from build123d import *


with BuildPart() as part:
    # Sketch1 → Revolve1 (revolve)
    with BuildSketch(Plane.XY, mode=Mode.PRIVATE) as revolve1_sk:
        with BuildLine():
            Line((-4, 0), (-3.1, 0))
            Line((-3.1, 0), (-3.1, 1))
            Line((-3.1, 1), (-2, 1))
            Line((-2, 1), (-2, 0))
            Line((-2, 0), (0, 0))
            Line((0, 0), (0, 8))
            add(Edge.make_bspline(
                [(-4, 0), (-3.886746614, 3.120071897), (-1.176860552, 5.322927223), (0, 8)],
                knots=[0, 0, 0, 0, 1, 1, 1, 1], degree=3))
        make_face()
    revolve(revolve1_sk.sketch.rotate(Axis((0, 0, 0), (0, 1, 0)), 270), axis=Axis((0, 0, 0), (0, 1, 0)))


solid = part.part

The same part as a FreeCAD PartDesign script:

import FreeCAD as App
import Part
import Sketcher
from FreeCAD import Vector
Q = App.Units.Quantity

doc = App.newDocument("Part")
params = doc.addObject("Spreadsheet::Sheet", "Params")
for row, (alias, value) in enumerate([
    ("sketch1_width", "2 mm"),
    ("sketch1_height", "1 mm"),
    ("sketch1_width2", "0.9 mm"),
    ("revolution_angle", "360 deg"),
], start=1):
    params.set(f"A{row}", alias)
    params.set(f"B{row}", "=" + value)
    params.setAlias(f"B{row}", alias)

body = doc.addObject("PartDesign::Body", "Body")

sketch1 = body.newObject("Sketcher::SketchObject", "Sketch")
sketch1.AttachmentSupport = (doc.getObject("XY_Plane"), [""])
sketch1.MapMode = "FlatFace"
sketch1.addGeometry(Part.LineSegment(Vector(-4, 0, 0), Vector(-3.1, 0, 0)), False)
sketch1.addGeometry(Part.LineSegment(Vector(-3.1, 0, 0), Vector(-3.1, 1, 0)), False)
sketch1.addGeometry(Part.LineSegment(Vector(-3.1, 1, 0), Vector(-2, 1, 0)), False)
sketch1.addGeometry(Part.LineSegment(Vector(-2, 1, 0), Vector(-2, 0, 0)), False)
sketch1.addGeometry(Part.LineSegment(Vector(-2, 0, 0), Vector(0, 0, 0)), False)
sketch1.addGeometry(Part.LineSegment(Vector(0, 0, 0), Vector(0, 8, 0)), False)
sketch1.addGeometry(Part.BSplineCurve([Vector(-4, 0, 0), Vector(-3.886747, 3.120072, 0), Vector(-1.176861, 5.322927, 0), Vector(0, 8, 0)], [4, 4], [0, 1], False, 3, [1, 1, 1, 1], False), False)
sketch1.addConstraint(Sketcher.Constraint("Block", 6))
sketch1.addConstraint(Sketcher.Constraint("Coincident", 0, 2, 1, 1))
sketch1.addConstraint(Sketcher.Constraint("Coincident", 1, 2, 2, 1))
sketch1.addConstraint(Sketcher.Constraint("Coincident", 2, 2, 3, 1))
sketch1.addConstraint(Sketcher.Constraint("Coincident", 3, 2, 4, 1))
sketch1.addConstraint(Sketcher.Constraint("Coincident", 4, 2, 5, 1))
sketch1.addConstraint(Sketcher.Constraint("Coincident", 5, 2, 6, 2))
sketch1.addConstraint(Sketcher.Constraint("Coincident", 6, 1, 0, 1))
sketch1.addConstraint(Sketcher.Constraint("Horizontal", 0))
sketch1.addConstraint(Sketcher.Constraint("Vertical", 1))
sketch1.addConstraint(Sketcher.Constraint("Horizontal", 2))
sketch1.addConstraint(Sketcher.Constraint("Vertical", 3))
sketch1.addConstraint(Sketcher.Constraint("Horizontal", 4))
sketch1.addConstraint(Sketcher.Constraint("Vertical", 5))
sketch1.addConstraint(Sketcher.Constraint("PointOnObject", 3, 2, -1))
sketch1.addConstraint(Sketcher.Constraint("DistanceX", 4, 1, 4, 2, Q("2 mm")))
sketch1.addConstraint(Sketcher.Constraint("DistanceY", 1, 1, 1, 2, Q("1 mm")))
sketch1.addConstraint(Sketcher.Constraint("DistanceX", 0, 1, 0, 2, Q("0.9 mm")))
sketch1.setExpression("Constraints[15]", "Params.sketch1_width")
sketch1.setExpression("Constraints[16]", "Params.sketch1_height")
sketch1.setExpression("Constraints[17]", "Params.sketch1_width2")
revolution = body.newObject("PartDesign::Revolution", "Revolution")
revolution.Profile = sketch1
revolution.ReferenceAxis = (sketch1, ["V_Axis"])
revolution.setExpression("Angle", "Params.revolution_angle")

doc.recompute()
